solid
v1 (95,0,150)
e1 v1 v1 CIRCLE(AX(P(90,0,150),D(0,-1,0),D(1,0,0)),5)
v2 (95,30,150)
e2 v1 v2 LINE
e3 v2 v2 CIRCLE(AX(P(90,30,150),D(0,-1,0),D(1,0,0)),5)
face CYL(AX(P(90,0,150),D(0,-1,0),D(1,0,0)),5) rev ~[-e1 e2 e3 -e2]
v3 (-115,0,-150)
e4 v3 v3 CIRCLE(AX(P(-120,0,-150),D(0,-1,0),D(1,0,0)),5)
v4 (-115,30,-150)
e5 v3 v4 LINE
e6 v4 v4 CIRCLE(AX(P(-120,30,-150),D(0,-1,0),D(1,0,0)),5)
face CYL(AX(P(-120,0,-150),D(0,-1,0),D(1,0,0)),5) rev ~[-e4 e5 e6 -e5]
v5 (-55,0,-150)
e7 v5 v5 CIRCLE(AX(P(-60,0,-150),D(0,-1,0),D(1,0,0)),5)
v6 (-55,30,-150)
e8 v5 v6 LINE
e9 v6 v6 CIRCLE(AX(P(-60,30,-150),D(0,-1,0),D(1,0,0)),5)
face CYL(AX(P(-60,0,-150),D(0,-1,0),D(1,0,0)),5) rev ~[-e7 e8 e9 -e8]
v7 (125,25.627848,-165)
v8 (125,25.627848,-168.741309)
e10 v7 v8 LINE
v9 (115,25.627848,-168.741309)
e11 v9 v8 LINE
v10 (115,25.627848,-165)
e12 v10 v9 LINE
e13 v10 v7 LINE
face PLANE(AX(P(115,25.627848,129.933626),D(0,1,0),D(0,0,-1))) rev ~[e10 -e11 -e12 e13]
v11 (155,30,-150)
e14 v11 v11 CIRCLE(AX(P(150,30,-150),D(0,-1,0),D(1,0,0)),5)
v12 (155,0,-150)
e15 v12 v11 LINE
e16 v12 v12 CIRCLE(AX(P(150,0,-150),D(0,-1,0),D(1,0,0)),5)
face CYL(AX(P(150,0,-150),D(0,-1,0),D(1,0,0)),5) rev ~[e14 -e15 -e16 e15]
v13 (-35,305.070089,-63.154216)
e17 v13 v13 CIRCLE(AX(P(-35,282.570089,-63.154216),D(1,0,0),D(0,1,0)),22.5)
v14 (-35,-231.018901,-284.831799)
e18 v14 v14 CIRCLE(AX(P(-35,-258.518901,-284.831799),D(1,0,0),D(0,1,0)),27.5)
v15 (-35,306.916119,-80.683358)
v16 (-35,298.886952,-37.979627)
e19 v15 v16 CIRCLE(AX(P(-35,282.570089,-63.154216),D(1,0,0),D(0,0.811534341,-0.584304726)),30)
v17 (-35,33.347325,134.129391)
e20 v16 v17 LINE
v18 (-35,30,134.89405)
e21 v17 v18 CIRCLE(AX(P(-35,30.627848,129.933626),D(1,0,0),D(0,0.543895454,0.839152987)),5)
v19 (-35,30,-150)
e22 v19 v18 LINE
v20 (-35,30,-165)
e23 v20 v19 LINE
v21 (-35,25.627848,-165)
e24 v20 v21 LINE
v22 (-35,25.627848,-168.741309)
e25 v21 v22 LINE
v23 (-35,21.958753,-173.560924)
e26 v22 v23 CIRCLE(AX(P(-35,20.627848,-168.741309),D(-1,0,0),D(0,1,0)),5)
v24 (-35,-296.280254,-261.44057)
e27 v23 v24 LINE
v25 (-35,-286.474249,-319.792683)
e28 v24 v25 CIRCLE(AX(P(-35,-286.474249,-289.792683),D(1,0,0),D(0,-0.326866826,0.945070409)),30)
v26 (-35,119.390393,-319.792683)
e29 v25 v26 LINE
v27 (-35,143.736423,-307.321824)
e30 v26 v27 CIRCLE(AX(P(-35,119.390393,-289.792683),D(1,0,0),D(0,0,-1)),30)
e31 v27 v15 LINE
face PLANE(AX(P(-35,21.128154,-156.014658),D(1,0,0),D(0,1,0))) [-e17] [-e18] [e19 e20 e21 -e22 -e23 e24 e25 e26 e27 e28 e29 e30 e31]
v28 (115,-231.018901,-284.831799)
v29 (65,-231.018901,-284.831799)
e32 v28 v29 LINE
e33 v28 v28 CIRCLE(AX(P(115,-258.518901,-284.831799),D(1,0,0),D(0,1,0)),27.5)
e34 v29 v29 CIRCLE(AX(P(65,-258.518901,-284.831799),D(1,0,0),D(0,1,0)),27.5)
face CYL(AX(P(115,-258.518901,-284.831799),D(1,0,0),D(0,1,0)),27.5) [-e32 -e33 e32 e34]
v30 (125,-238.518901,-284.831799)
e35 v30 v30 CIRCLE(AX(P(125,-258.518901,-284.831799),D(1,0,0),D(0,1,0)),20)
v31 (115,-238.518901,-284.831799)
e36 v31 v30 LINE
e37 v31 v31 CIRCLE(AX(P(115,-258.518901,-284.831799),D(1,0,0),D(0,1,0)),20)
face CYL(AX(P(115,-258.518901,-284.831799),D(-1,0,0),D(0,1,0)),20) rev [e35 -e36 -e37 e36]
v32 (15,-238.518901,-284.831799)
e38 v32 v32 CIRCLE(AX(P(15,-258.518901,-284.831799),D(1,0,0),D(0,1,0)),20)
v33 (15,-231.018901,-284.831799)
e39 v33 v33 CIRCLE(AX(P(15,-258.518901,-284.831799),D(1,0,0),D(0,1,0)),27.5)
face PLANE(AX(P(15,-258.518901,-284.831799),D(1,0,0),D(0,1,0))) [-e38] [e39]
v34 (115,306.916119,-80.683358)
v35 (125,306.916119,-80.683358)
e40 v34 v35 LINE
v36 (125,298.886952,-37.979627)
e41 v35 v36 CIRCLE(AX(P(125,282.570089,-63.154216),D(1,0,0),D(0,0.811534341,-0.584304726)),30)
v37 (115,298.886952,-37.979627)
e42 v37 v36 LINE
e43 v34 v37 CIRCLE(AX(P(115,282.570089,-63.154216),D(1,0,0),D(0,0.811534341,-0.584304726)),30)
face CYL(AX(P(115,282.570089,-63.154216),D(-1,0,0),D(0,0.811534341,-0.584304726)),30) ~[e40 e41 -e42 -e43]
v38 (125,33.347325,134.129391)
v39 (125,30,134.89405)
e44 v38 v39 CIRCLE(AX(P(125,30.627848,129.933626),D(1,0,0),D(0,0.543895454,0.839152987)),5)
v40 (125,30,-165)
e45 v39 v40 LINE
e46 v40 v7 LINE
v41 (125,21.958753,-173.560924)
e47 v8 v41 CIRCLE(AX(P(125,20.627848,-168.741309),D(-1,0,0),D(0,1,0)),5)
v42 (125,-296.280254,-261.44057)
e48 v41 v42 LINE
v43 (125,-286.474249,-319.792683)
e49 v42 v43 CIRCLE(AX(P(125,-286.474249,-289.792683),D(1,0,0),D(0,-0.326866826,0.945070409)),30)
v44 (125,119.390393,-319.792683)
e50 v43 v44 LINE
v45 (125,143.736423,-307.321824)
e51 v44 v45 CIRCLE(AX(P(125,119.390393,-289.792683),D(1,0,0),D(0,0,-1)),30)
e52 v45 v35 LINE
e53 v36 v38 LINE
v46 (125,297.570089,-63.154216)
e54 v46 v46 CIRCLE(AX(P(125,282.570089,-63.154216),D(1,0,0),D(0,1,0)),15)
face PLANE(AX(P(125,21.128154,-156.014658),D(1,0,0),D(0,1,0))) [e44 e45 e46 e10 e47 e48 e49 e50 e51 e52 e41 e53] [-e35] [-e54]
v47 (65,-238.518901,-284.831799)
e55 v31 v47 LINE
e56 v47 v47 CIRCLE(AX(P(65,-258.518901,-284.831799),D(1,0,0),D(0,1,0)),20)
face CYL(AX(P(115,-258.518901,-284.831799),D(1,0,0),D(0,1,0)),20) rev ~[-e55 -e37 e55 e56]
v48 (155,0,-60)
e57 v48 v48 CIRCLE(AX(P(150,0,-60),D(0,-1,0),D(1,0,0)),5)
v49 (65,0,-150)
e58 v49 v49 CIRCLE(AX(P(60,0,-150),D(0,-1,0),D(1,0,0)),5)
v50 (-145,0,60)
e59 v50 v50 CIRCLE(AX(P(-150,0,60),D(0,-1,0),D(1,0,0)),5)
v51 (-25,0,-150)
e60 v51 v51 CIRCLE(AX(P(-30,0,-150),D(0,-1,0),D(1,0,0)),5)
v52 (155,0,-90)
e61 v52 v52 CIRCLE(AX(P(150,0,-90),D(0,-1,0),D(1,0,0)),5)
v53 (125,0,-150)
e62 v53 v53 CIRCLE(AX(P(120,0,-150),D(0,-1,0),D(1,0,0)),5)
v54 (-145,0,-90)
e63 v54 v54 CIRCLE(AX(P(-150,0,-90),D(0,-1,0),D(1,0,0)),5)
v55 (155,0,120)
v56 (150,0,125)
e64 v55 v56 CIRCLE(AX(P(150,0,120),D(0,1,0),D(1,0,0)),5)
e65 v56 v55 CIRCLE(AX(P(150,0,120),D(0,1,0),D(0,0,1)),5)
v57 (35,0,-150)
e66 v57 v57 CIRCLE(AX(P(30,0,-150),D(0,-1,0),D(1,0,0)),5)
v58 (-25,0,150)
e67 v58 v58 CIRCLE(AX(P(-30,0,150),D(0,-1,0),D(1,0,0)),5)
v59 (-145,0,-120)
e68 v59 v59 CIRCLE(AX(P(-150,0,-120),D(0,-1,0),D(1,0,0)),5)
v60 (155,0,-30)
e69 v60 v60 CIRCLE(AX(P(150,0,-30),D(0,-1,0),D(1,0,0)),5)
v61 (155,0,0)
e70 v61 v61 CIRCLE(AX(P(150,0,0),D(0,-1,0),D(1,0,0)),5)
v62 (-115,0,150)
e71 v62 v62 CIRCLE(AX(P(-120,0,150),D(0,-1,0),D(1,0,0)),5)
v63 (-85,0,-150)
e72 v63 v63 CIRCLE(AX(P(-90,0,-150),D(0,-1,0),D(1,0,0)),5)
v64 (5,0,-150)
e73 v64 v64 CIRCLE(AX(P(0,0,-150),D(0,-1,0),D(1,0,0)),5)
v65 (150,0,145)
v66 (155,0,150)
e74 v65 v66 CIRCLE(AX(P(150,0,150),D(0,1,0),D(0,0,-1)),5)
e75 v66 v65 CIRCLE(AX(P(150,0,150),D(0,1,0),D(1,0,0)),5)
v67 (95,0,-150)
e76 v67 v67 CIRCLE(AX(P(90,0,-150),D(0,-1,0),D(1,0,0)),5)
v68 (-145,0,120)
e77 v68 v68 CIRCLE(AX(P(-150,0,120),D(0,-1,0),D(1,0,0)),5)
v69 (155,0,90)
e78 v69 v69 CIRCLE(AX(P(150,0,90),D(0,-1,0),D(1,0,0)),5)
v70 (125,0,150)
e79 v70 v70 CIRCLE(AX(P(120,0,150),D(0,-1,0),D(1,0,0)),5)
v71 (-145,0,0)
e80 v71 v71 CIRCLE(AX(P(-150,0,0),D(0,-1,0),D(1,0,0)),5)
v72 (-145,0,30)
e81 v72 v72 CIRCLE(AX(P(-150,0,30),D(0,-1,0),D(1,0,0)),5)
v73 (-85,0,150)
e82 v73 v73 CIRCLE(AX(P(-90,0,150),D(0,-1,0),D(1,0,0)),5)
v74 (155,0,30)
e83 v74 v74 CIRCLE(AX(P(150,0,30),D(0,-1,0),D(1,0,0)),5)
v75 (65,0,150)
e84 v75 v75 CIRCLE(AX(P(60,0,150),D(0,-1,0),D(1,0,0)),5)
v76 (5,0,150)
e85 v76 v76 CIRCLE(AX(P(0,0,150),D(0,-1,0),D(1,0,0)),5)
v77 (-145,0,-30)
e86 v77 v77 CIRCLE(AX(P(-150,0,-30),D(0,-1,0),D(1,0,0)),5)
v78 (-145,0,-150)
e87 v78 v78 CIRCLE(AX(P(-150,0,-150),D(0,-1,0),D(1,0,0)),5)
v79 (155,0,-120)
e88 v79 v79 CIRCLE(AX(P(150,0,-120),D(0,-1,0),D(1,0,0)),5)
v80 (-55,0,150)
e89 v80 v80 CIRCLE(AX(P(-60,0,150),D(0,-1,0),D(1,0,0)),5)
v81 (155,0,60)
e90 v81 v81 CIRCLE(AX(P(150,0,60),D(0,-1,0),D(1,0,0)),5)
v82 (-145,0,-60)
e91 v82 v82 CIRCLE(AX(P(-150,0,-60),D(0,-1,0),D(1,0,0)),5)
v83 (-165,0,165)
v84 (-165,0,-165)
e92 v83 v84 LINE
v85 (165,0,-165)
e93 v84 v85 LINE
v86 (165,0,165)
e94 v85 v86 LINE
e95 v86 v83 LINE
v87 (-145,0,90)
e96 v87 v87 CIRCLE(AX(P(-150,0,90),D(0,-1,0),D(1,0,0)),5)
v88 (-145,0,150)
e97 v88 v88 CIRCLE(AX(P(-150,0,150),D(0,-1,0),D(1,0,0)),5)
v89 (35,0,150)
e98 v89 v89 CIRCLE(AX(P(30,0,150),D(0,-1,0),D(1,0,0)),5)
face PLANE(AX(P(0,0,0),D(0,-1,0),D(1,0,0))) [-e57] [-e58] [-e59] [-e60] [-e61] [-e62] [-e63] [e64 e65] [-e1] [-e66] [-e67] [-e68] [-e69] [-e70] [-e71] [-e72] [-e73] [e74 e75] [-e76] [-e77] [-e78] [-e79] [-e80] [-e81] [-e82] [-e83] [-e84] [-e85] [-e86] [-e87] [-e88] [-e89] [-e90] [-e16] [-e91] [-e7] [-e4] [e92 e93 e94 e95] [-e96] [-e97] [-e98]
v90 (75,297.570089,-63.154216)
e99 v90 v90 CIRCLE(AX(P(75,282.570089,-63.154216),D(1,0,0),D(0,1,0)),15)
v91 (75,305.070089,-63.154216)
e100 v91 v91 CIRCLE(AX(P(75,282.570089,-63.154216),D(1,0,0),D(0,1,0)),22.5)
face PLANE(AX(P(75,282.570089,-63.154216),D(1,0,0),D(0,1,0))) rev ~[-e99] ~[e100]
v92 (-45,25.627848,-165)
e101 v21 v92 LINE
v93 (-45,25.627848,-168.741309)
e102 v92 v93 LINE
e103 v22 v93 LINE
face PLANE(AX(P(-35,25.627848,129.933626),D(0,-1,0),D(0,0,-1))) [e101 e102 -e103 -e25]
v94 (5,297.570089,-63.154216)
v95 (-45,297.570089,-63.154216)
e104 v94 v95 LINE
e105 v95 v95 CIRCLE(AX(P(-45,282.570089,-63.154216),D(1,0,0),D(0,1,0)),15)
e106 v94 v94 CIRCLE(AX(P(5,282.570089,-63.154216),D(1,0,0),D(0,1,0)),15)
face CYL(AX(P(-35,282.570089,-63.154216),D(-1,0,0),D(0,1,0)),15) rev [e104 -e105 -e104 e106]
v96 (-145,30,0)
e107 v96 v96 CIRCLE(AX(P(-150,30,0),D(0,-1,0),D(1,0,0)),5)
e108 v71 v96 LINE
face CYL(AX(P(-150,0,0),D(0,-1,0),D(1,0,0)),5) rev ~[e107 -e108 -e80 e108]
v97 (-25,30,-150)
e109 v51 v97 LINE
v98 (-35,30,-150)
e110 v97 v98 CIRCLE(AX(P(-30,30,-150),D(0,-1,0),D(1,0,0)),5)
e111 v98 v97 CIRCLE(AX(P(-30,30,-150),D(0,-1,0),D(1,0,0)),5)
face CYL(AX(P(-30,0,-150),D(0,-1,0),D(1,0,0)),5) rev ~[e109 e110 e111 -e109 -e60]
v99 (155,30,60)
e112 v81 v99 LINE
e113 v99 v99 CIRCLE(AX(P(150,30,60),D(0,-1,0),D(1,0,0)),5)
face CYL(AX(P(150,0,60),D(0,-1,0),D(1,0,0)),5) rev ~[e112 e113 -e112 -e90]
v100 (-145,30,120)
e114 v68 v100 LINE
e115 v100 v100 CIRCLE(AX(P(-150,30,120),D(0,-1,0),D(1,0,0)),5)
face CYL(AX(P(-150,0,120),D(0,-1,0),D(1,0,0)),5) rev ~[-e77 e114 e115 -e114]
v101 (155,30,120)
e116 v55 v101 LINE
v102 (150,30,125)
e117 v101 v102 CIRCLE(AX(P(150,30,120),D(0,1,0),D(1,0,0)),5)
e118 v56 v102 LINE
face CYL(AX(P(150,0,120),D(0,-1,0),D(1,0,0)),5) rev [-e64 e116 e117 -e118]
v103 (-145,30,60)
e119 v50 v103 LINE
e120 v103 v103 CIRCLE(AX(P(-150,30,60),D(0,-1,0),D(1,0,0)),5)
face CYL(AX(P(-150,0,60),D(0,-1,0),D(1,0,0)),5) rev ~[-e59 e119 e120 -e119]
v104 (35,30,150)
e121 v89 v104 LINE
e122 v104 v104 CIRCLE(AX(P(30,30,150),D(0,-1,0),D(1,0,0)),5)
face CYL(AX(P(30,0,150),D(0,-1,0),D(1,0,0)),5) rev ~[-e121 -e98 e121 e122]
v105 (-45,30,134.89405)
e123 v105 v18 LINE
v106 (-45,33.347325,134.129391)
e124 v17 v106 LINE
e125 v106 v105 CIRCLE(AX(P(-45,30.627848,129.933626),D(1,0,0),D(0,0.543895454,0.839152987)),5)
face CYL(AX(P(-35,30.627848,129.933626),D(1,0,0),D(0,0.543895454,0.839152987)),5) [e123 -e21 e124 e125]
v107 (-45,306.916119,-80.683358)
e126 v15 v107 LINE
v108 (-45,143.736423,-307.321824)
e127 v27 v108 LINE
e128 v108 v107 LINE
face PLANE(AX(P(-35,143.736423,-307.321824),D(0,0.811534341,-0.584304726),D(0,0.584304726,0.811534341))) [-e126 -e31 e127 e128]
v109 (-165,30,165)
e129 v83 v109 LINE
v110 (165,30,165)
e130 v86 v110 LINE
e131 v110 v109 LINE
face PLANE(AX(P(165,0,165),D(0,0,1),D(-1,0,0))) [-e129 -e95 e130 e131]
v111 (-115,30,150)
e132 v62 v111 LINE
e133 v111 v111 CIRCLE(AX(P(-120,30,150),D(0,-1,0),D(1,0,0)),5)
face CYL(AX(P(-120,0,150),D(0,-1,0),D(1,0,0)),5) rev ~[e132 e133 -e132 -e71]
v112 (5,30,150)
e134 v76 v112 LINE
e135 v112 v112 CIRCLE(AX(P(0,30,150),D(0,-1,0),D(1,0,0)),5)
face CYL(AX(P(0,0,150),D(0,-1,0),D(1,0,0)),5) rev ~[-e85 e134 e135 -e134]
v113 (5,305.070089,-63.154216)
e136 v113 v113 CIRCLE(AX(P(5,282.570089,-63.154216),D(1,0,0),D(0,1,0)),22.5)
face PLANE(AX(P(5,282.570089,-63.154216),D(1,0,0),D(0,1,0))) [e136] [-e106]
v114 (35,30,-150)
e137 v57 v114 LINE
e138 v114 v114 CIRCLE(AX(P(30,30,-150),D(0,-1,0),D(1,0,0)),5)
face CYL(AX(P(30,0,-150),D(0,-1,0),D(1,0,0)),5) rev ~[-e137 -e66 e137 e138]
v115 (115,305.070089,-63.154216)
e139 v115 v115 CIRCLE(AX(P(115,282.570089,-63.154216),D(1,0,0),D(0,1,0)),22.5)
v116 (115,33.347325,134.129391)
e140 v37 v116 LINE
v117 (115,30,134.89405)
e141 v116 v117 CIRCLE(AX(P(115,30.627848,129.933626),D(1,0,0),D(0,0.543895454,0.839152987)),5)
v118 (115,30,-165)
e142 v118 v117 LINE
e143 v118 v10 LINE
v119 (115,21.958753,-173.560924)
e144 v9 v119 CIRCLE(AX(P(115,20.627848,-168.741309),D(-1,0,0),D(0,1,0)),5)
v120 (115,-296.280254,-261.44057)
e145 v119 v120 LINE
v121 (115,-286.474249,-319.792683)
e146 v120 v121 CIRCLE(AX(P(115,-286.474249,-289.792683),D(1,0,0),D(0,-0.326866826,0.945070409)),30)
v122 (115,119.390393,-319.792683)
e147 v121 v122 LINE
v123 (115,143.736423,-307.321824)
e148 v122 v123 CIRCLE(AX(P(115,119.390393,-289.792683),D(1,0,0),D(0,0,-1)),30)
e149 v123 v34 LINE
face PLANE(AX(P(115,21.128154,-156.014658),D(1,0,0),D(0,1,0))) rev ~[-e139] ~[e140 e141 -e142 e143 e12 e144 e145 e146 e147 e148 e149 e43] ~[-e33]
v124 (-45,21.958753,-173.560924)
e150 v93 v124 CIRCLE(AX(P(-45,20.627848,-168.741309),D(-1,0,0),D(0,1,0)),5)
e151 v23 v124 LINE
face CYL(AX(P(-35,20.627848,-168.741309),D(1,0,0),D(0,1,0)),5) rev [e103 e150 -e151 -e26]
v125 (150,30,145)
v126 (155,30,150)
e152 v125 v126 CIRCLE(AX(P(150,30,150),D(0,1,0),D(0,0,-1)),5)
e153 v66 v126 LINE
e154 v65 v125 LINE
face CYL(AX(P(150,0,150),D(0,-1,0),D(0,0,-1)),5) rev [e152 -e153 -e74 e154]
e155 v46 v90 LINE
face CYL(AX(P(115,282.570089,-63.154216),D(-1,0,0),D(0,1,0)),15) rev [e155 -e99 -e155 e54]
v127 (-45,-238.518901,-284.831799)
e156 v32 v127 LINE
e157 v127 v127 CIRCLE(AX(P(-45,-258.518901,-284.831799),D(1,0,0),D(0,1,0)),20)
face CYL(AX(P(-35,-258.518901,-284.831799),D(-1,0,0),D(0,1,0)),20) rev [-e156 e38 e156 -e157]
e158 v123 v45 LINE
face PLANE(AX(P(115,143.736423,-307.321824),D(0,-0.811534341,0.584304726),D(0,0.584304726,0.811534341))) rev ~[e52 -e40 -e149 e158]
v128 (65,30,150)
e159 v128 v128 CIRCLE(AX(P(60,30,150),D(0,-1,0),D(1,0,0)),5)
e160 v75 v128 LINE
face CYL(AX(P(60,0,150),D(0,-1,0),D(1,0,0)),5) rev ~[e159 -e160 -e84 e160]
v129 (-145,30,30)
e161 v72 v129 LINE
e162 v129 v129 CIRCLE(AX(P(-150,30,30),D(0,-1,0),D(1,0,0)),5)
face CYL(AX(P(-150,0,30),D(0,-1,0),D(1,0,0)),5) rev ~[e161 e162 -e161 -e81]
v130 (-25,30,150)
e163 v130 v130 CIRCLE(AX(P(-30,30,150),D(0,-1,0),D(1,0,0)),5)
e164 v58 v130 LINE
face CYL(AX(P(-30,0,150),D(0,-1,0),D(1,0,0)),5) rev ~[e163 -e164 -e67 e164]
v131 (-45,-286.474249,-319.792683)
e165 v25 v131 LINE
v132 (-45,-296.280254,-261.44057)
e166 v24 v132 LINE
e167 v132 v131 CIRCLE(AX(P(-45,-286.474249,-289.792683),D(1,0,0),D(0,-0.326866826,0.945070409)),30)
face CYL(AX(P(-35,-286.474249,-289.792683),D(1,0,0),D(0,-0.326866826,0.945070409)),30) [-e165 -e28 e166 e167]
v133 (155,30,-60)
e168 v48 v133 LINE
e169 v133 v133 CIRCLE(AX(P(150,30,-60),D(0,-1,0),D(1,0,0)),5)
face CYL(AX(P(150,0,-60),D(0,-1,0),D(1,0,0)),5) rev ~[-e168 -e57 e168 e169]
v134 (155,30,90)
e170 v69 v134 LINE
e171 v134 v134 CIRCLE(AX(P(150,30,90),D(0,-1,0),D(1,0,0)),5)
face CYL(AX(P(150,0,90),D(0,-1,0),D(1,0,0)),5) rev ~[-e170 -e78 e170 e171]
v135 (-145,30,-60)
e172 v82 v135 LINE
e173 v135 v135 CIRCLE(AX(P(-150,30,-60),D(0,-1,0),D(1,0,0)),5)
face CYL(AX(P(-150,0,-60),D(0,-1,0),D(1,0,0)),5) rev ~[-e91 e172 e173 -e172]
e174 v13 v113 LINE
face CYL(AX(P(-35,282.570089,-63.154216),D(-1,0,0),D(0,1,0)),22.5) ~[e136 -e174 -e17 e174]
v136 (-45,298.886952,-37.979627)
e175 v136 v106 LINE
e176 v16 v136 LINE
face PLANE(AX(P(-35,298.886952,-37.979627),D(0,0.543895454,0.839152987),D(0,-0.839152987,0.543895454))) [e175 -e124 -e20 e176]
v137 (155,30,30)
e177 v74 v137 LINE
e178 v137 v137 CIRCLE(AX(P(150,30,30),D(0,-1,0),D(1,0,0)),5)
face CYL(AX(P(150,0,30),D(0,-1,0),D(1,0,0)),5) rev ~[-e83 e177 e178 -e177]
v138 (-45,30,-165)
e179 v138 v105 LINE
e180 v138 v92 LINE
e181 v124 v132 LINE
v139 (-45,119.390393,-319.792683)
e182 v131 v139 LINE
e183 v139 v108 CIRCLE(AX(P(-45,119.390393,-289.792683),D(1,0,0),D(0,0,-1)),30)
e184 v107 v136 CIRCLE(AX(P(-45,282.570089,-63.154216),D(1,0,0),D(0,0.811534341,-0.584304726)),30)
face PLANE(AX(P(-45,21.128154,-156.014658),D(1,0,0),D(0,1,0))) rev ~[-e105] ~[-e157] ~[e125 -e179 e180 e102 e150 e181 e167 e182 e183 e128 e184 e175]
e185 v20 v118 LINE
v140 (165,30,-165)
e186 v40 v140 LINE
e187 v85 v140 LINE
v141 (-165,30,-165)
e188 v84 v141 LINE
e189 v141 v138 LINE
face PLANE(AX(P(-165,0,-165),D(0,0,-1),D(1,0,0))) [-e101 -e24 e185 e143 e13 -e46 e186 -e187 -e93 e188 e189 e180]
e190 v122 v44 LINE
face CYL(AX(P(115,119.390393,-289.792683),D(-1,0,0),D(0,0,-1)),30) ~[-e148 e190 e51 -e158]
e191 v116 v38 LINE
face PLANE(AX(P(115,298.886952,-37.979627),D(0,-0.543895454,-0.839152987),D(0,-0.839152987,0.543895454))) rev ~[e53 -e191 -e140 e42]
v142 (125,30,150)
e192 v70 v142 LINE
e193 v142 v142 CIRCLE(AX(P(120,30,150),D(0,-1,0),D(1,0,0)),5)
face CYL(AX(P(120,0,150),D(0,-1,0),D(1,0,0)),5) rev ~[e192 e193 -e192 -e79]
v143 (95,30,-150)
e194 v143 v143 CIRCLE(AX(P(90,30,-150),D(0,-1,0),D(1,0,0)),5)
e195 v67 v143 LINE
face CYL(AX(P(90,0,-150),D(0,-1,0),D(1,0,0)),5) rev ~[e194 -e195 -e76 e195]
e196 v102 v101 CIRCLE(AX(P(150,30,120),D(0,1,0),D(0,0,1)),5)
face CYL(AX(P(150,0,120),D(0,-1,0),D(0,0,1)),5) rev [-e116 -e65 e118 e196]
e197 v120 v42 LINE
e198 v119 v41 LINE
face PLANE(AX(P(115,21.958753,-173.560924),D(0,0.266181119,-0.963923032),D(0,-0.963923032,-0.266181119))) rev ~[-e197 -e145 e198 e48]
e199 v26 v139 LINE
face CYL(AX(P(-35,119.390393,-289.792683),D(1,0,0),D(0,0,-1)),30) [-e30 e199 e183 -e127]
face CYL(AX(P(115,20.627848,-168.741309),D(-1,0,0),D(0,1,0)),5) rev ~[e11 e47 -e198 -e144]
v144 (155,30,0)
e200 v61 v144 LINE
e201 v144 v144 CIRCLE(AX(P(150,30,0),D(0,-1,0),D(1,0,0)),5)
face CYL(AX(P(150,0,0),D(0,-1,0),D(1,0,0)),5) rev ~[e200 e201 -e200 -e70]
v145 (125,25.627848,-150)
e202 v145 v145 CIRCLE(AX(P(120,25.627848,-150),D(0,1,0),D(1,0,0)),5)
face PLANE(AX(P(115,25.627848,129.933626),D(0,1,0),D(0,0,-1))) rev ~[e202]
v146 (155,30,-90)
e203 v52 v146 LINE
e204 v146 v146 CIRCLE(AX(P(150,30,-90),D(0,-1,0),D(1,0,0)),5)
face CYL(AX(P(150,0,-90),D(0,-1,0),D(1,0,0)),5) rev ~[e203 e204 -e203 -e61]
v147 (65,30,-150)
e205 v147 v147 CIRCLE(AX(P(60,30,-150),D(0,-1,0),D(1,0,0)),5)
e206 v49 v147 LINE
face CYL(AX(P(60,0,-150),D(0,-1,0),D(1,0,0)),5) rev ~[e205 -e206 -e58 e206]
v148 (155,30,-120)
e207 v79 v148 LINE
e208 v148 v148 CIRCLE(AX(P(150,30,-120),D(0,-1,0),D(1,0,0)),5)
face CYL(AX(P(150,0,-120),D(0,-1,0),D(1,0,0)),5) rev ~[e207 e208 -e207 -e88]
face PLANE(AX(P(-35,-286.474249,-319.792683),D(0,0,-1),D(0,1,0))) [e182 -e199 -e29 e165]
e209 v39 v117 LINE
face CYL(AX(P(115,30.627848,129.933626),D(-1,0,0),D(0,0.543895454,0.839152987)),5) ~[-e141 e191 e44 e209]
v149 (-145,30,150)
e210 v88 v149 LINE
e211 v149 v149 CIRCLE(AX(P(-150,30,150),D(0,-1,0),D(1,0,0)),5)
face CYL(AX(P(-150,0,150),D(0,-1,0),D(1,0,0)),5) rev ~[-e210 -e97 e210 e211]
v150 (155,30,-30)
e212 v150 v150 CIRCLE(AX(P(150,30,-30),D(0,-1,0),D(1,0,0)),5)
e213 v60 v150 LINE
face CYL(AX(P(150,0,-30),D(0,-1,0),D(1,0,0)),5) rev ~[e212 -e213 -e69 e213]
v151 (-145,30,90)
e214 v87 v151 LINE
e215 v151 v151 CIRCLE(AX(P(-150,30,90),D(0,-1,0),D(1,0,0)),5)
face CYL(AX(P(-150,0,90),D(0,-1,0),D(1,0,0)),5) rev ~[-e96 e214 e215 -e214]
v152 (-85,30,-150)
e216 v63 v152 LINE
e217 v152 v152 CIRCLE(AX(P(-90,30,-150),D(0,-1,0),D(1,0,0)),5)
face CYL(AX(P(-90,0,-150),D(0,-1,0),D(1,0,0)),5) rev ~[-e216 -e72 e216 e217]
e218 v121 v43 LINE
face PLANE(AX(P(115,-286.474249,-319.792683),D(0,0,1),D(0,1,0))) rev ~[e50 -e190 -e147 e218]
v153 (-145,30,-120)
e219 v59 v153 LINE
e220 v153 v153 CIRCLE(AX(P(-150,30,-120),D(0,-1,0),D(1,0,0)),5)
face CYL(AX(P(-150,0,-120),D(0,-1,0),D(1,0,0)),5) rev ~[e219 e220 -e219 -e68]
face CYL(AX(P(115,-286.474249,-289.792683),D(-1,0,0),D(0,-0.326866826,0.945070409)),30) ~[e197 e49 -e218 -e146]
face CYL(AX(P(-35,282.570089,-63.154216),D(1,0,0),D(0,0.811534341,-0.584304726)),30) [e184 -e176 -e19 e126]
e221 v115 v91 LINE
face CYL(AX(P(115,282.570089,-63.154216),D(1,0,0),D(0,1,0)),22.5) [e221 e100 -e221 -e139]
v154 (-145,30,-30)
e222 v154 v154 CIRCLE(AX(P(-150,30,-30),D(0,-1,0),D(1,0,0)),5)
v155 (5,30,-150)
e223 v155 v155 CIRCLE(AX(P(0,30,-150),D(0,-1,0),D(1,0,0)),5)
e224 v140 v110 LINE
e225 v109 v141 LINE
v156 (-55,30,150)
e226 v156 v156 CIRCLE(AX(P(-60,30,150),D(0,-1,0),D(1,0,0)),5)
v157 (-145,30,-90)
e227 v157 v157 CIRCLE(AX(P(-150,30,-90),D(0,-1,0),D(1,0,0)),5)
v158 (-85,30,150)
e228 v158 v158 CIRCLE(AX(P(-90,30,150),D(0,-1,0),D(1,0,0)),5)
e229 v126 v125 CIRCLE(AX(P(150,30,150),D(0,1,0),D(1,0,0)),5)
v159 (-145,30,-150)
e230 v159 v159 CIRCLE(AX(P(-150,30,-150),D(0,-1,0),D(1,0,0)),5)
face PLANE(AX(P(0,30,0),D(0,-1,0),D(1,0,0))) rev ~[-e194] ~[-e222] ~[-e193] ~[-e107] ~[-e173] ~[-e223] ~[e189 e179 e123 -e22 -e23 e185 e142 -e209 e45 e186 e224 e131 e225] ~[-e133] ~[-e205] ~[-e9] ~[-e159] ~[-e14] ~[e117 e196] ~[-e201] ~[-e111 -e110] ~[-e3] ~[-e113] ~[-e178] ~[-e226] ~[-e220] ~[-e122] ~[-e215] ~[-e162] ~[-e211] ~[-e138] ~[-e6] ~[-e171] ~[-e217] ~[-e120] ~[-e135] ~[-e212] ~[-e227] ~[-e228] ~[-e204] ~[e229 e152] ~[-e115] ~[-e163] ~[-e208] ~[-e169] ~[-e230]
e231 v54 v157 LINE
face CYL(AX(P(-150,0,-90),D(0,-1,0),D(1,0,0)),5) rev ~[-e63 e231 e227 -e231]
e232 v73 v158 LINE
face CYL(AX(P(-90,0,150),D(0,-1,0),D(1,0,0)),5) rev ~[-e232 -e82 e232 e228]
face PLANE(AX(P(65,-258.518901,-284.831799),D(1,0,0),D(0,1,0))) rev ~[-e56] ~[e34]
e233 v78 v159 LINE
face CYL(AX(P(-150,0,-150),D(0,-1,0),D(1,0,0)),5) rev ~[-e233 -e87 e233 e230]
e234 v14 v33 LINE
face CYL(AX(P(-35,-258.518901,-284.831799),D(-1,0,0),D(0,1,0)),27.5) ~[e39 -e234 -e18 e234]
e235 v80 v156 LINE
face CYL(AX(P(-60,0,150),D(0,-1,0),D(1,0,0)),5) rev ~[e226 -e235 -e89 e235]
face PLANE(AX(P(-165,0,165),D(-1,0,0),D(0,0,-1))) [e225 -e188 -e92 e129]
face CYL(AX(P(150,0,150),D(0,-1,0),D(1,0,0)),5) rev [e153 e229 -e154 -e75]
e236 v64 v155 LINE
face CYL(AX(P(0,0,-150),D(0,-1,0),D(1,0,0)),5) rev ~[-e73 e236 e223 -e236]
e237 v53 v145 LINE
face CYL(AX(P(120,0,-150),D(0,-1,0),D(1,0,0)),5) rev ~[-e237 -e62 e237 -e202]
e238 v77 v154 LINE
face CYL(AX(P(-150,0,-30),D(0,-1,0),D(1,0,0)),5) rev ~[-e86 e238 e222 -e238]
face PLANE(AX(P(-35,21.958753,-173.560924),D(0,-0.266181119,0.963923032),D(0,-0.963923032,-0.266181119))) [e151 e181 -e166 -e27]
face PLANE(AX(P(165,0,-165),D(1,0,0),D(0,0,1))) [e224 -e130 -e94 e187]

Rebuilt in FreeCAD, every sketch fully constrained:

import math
import FreeCAD as App
import Part
import Sketcher

V = App.Vector
Q = App.Units.Quantity

doc = App.newDocument("Part")
body = doc.addObject("PartDesign::Body", "Body")

sketch1 = body.newObject("Sketcher::SketchObject", "Sketch")
sketch1.AttachmentSupport = (doc.getObject("XZ_Plane"), [""])
sketch1.MapMode = "FlatFace"
sketch1.addGeometry(Part.LineSegment(V(-165, -165, 0), V(165, -165, 0)), False)
sketch1.addGeometry(Part.LineSegment(V(165, -165, 0), V(165, 165, 0)), False)
sketch1.addGeometry(Part.LineSegment(V(165, 165, 0), V(-165, 165, 0)), False)
sketch1.addGeometry(Part.LineSegment(V(-165, 165, 0), V(-165, -165, 0)), False)
sketch1.addGeometry(Part.Circle(V(-150, -150, 0), V(0, 0, 1), 5), False)
sketch1.addGeometry(Part.Circle(V(-120, -150, 0), V(0, 0, 1), 5), False)
sketch1.addGeometry(Part.Circle(V(-150, -120, 0), V(0, 0, 1), 5), False)
sketch1.addGeometry(Part.Circle(V(-90, -150, 0), V(0, 0, 1), 5), False)
sketch1.addGeometry(Part.Circle(V(-150, -90, 0), V(0, 0, 1), 5), False)
sketch1.addGeometry(Part.Circle(V(-60, -150, 0), V(0, 0, 1), 5), False)
sketch1.addGeometry(Part.Circle(V(-30, -150, 0), V(0, 0, 1), 5), False)
sketch1.addGeometry(Part.Circle(V(-150, -60, 0), V(0, 0, 1), 5), False)
sketch1.addGeometry(Part.Circle(V(-150, -30, 0), V(0, 0, 1), 5), False)
sketch1.addGeometry(Part.Circle(V(0, -150, 0), V(0, 0, 1), 5), False)
sketch1.addGeometry(Part.Circle(V(30, -150, 0), V(0, 0, 1), 5), False)
sketch1.addGeometry(Part.Circle(V(60, -150, 0), V(0, 0, 1), 5), False)
sketch1.addGeometry(Part.Circle(V(90, -150, 0), V(0, 0, 1), 5), False)
sketch1.addGeometry(Part.Circle(V(120, -150, 0), V(0, 0, 1), 5), False)
sketch1.addGeometry(Part.Circle(V(150, -150, 0), V(0, 0, 1), 5), False)
sketch1.addGeometry(Part.Circle(V(150, -120, 0), V(0, 0, 1), 5), False)
sketch1.addGeometry(Part.Circle(V(150, -90, 0), V(0, 0, 1), 5), False)
sketch1.addGeometry(Part.Circle(V(150, -60, 0), V(0, 0, 1), 5), False)
sketch1.addGeometry(Part.Circle(V(150, -30, 0), V(0, 0, 1), 5), False)
sketch1.addGeometry(Part.Circle(V(-150, 0, 0), V(0, 0, 1), 5), False)
sketch1.addGeometry(Part.Circle(V(-150, 30, 0), V(0, 0, 1), 5), False)
sketch1.addGeometry(Part.Circle(V(-150, 60, 0), V(0, 0, 1), 5), False)
sketch1.addGeometry(Part.Circle(V(-150, 90, 0), V(0, 0, 1), 5), False)
sketch1.addGeometry(Part.Circle(V(-150, 120, 0), V(0, 0, 1), 5), False)
sketch1.addGeometry(Part.Circle(V(-150, 150, 0), V(0, 0, 1), 5), False)
sketch1.addGeometry(Part.Circle(V(-120, 150, 0), V(0, 0, 1), 5), False)
sketch1.addGeometry(Part.Circle(V(-90, 150, 0), V(0, 0, 1), 5), False)
sketch1.addGeometry(Part.Circle(V(-60, 150, 0), V(0, 0, 1), 5), False)
sketch1.addGeometry(Part.Circle(V(-30, 150, 0), V(0, 0, 1), 5), False)
sketch1.addGeometry(Part.Circle(V(150, 0, 0), V(0, 0, 1), 5), False)
sketch1.addGeometry(Part.Circle(V(150, 30, 0), V(0, 0, 1), 5), False)
sketch1.addGeometry(Part.Circle(V(150, 60, 0), V(0, 0, 1), 5), False)
sketch1.addGeometry(Part.Circle(V(0, 150, 0), V(0, 0, 1), 5), False)
sketch1.addGeometry(Part.Circle(V(30, 150, 0), V(0, 0, 1), 5), False)
sketch1.addGeometry(Part.Circle(V(60, 150, 0), V(0, 0, 1), 5), False)
sketch1.addGeometry(Part.Circle(V(150, 90, 0), V(0, 0, 1), 5), False)
sketch1.addGeometry(Part.Circle(V(90, 150, 0), V(0, 0, 1), 5), False)
sketch1.addGeometry(Part.ArcOfCircle(Part.Circle(V(150, 120, 0), V(0, 0, 1), 5), math.radians(0), math.radians(90)), False)
sketch1.addGeometry(Part.ArcOfCircle(Part.Circle(V(150, 120, 0), V(0, 0, 1), 5), math.radians(90), math.radians(360)), False)
sketch1.addGeometry(Part.Circle(V(120, 150, 0), V(0, 0, 1), 5), False)
sketch1.addGeometry(Part.ArcOfCircle(Part.Circle(V(150, 150, 0), V(0, 0, 1), 5), math.radians(0), math.radians(270)), False)
sketch1.addGeometry(Part.ArcOfCircle(Part.Circle(V(150, 150, 0), V(0, 0, 1), 5), math.radians(-90), math.radians(0)), False)
sketch1.addConstraint(Sketcher.Constraint("Coincident", 0, 2, 1, 1))
sketch1.addConstraint(Sketcher.Constraint("Coincident", 1, 2, 2, 1))
sketch1.addConstraint(Sketcher.Constraint("Coincident", 2, 2, 3, 1))
sketch1.addConstraint(Sketcher.Constraint("Coincident", 3, 2, 0, 1))
sketch1.addConstraint(Sketcher.Constraint("Tangent", 41, 1, 42, 2))
sketch1.addConstraint(Sketcher.Constraint("Coincident", 42, 1, 41, 2))
sketch1.addConstraint(Sketcher.Constraint("Tangent", 44, 1, 45, 2))
sketch1.addConstraint(Sketcher.Constraint("Coincident", 45, 1, 44, 2))
sketch1.addConstraint(Sketcher.Constraint("Horizontal", 0))
sketch1.addConstraint(Sketcher.Constraint("Vertical", 1))
sketch1.addConstraint(Sketcher.Constraint("Horizontal", 2))
sketch1.addConstraint(Sketcher.Constraint("Vertical", 3))
sketch1.addConstraint(Sketcher.Constraint("Equal", 4, 5))
sketch1.addConstraint(Sketcher.Constraint("Equal", 5, 6))
sketch1.addConstraint(Sketcher.Constraint("Equal", 6, 7))
sketch1.addConstraint(Sketcher.Constraint("Equal", 7, 8))
sketch1.addConstraint(Sketcher.Constraint("Equal", 8, 9))
sketch1.addConstraint(Sketcher.Constraint("Equal", 9, 10))
sketch1.addConstraint(Sketcher.Constraint("Equal", 10, 11))
sketch1.addConstraint(Sketcher.Constraint("Equal", 11, 12))
sketch1.addConstraint(Sketcher.Constraint("Equal", 12, 13))
sketch1.addConstraint(Sketcher.Constraint("Equal", 13, 14))
sketch1.addConstraint(Sketcher.Constraint("Equal", 14, 15))
sketch1.addConstraint(Sketcher.Constraint("Equal", 15, 16))
sketch1.addConstraint(Sketcher.Constraint("Equal", 16, 17))
sketch1.addConstraint(Sketcher.Constraint("Equal", 17, 18))
sketch1.addConstraint(Sketcher.Constraint("Equal", 18, 19))
sketch1.addConstraint(Sketcher.Constraint("Equal", 19, 20))
sketch1.addConstraint(Sketcher.Constraint("Equal", 20, 21))
sketch1.addConstraint(Sketcher.Constraint("Equal", 21, 22))
sketch1.addConstraint(Sketcher.Constraint("Equal", 22, 23))
sketch1.addConstraint(Sketcher.Constraint("Equal", 23, 24))
sketch1.addConstraint(Sketcher.Constraint("Equal", 24, 25))
sketch1.addConstraint(Sketcher.Constraint("Equal", 25, 26))
sketch1.addConstraint(Sketcher.Constraint("Equal", 26, 27))
sketch1.addConstraint(Sketcher.Constraint("Equal", 27, 28))
sketch1.addConstraint(Sketcher.Constraint("Equal", 28, 29))
sketch1.addConstraint(Sketcher.Constraint("Equal", 29, 30))
sketch1.addConstraint(Sketcher.Constraint("Equal", 30, 31))
sketch1.addConstraint(Sketcher.Constraint("Equal", 31, 32))
sketch1.addConstraint(Sketcher.Constraint("Equal", 32, 33))
sketch1.addConstraint(Sketcher.Constraint("Equal", 33, 34))
sketch1.addConstraint(Sketcher.Constraint("Equal", 34, 35))
sketch1.addConstraint(Sketcher.Constraint("Equal", 35, 36))
sketch1.addConstraint(Sketcher.Constraint("Equal", 36, 37))
sketch1.addConstraint(Sketcher.Constraint("Equal", 37, 38))
sketch1.addConstraint(Sketcher.Constraint("Equal", 38, 39))
sketch1.addConstraint(Sketcher.Constraint("Equal", 39, 40))
sketch1.addConstraint(Sketcher.Constraint("Equal", 40, 41))
sketch1.addConstraint(Sketcher.Constraint("Equal", 42, 43))
sketch1.addConstraint(Sketcher.Constraint("Equal", 43, 44))
sketch1.addConstraint(Sketcher.Constraint("Symmetric", 22, 3, 24, 3, -1, 1))
sketch1.addConstraint(Sketcher.Constraint("Symmetric", 21, 3, 25, 3, -1, 1))
sketch1.addConstraint(Sketcher.Constraint("Symmetric", 20, 3, 26, 3, -1, 1))
sketch1.addConstraint(Sketcher.Constraint("Symmetric", 19, 3, 27, 3, -1, 1))
sketch1.addConstraint(Sketcher.Constraint("Symmetric", 18, 3, 28, 3, -1, 1))
sketch1.addConstraint(Sketcher.Constraint("Symmetric", 17, 3, 29, 3, -1, 1))
sketch1.addConstraint(Sketcher.Constraint("Symmetric", 16, 3, 30, 3, -1, 1))
sketch1.addConstraint(Sketcher.Constraint("Symmetric", 15, 3, 31, 3, -1, 1))
sketch1.addConstraint(Sketcher.Constraint("Symmetric", 14, 3, 32, 3, -1, 1))
sketch1.addConstraint(Sketcher.Constraint("Symmetric", 23, 3, 33, 3, -1, 1))
sketch1.addConstraint(Sketcher.Constraint("Symmetric", 12, 3, 34, 3, -1, 1))
sketch1.addConstraint(Sketcher.Constraint("Symmetric", 11, 3, 35, 3, -1, 1))
sketch1.addConstraint(Sketcher.Constraint("Symmetric", 13, 3, 36, 3, -1, 1))
sketch1.addConstraint(Sketcher.Constraint("Symmetric", 10, 3, 37, 3, -1, 1))
sketch1.addConstraint(Sketcher.Constraint("Symmetric", 9, 3, 38, 3, -1, 1))
sketch1.addConstraint(Sketcher.Constraint("Symmetric", 8, 3, 39, 3, -1, 1))
sketch1.addConstraint(Sketcher.Constraint("Symmetric", 7, 3, 40, 3, -1, 1))
sketch1.addConstraint(Sketcher.Constraint("Symmetric", 6, 3, 41, 3, -1, 1))
sketch1.addConstraint(Sketcher.Constraint("Symmetric", 5, 3, 43, 3, -1, 1))
sketch1.addConstraint(Sketcher.Constraint("Symmetric", 4, 3, 44, 3, -1, 1))
sketch1.addConstraint(Sketcher.Constraint("Symmetric", 0, 2, 2, 2, -1, 1))
sketch1.addConstraint(Sketcher.Constraint("Symmetric", 10, 3, 14, 3, -2))
sketch1.addConstraint(Sketcher.Constraint("Symmetric", 9, 3, 15, 3, -2))
sketch1.addConstraint(Sketcher.Constraint("Symmetric", 7, 3, 16, 3, -2))
sketch1.addConstraint(Sketcher.Constraint("Symmetric", 5, 3, 17, 3, -2))
sketch1.addConstraint(Sketcher.Constraint("Symmetric", 4, 3, 18, 3, -2))
sketch1.addConstraint(Sketcher.Constraint("Symmetric", 6, 3, 19, 3, -2))
sketch1.addConstraint(Sketcher.Constraint("Symmetric", 8, 3, 20, 3, -2))
sketch1.addConstraint(Sketcher.Constraint("Symmetric", 11, 3, 21, 3, -2))
sketch1.addConstraint(Sketcher.Constraint("Symmetric", 12, 3, 22, 3, -2))
sketch1.addConstraint(Sketcher.Constraint("PointOnObject", 13, 3, -2))
sketch1.addConstraint(Sketcher.Constraint("PointOnObject", 23, 3, -1))
sketch1.addConstraint(Sketcher.Constraint("Horizontal", 4, 3, 5, 3))
sketch1.addConstraint(Sketcher.Constraint("Horizontal", 5, 3, 7, 3))
sketch1.addConstraint(Sketcher.Constraint("Horizontal", 7, 3, 9, 3))
sketch1.addConstraint(Sketcher.Constraint("Horizontal", 9, 3, 10, 3))
sketch1.addConstraint(Sketcher.Constraint("Horizontal", 10, 3, 13, 3))
sketch1.addConstraint(Sketcher.Constraint("Horizontal", 42, 3, 41, 1))
sketch1.addConstraint(Sketcher.Constraint("Horizontal", 45, 3, 44, 1))
sketch1.addConstraint(Sketcher.Constraint("Vertical", 4, 3, 6, 3))
sketch1.addConstraint(Sketcher.Constraint("Vertical", 6, 3, 8, 3))
sketch1.addConstraint(Sketcher.Constraint("Vertical", 8, 3, 11, 3))
sketch1.addConstraint(Sketcher.Constraint("Vertical", 11, 3, 12, 3))
sketch1.addConstraint(Sketcher.Constraint("Vertical", 12, 3, 23, 3))
sketch1.addConstraint(Sketcher.Constraint("Vertical", 45, 3, 42, 1))
sketch1.addConstraint(Sketcher.Constraint("Vertical", 42, 1, 45, 1))
sketch1.addConstraint(Sketcher.Constraint("Equal", 2, 1))
sketch1.addConstraint(Sketcher.Constraint("Diameter", 4, Q("10 mm")))
sketch1.addConstraint(Sketcher.Constraint("DistanceX", 0, 1, 0, 2, Q("330 mm")))
sketch1.addConstraint(Sketcher.Constraint("DistanceX", 4, 3, -1, 1, Q("150 mm")))
sketch1.addConstraint(Sketcher.Constraint("DistanceY", 4, 3, -1, 1, Q("150 mm")))
sketch1.addConstraint(Sketcher.Constraint("DistanceX", 5, 3, -1, 1, Q("120 mm")))
sketch1.addConstraint(Sketcher.Constraint("DistanceY", 6, 3, -1, 1, Q("120 mm")))
sketch1.addConstraint(Sketcher.Constraint("DistanceX", 7, 3, -1, 1, Q("90 mm")))
sketch1.addConstraint(Sketcher.Constraint("DistanceY", 8, 3, -1, 1, Q("90 mm")))
sketch1.addConstraint(Sketcher.Constraint("DistanceX", 9, 3, -1, 1, Q("60 mm")))
sketch1.addConstraint(Sketcher.Constraint("DistanceX", 10, 3, -1, 1, Q("30 mm")))
sketch1.addConstraint(Sketcher.Constraint("DistanceY", 11, 3, -1, 1, Q("60 mm")))
sketch1.addConstraint(Sketcher.Constraint("DistanceY", 12, 3, -1, 1, Q("30 mm")))
pad1 = body.newObject("PartDesign::Pad", "Pad")
pad1.Profile = sketch1
pad1.Length = 30
pad1.Reversed = True

sketch2 = body.newObject("Sketcher::SketchObject", "Sketch001")
sketch2.AttachmentSupport = (doc.getObject("YZ_Plane"), [""])
sketch2.MapMode = "FlatFace"
sketch2.AttachmentOffset = App.Placement(V(0, 0, 115), App.Rotation())
sketch2.addGeometry(Part.LineSegment(V(299, -38, 0), V(33, 134, 0)), False)
sketch2.addGeometry(Part.ArcOfCircle(Part.Circle(V(31, 130, 0), V(0, 0, 1), 5), math.radians(57), math.radians(180)), False)
sketch2.addGeometry(Part.LineSegment(V(26, 130, 0), V(26, -169, 0)), False)
sketch2.addGeometry(Part.ArcOfCircle(Part.Circle(V(21, -169, 0), V(0, 0, 1), 5), math.radians(-75), math.radians(0)), False)
sketch2.addGeometry(Part.LineSegment(V(22, -174, 0), V(-296, -261, 0)), False)
sketch2.addGeometry(Part.ArcOfCircle(Part.Circle(V(-286, -290, 0), V(0, 0, 1), 30), math.radians(109), math.radians(270)), False)
sketch2.addGeometry(Part.LineSegment(V(-286, -320, 0), V(119, -320, 0)), False)
sketch2.addGeometry(Part.ArcOfCircle(Part.Circle(V(119, -290, 0), V(0, 0, 1), 30), math.radians(-90), math.radians(-36)), False)
sketch2.addGeometry(Part.LineSegment(V(144, -307, 0), V(307, -81, 0)), False)
sketch2.addGeometry(Part.ArcOfCircle(Part.Circle(V(283, -63, 0), V(0, 0, 1), 30), math.radians(-36), math.radians(57)), False)
sketch2.addGeometry(Part.Circle(V(-259, -285, 0), V(0, 0, 1), 20), False)
sketch2.addGeometry(Part.Circle(V(283, -63, 0), V(0, 0, 1), 15), False)
sketch2.addConstraint(Sketcher.Constraint("Tangent", 0, 2, 1, 1))
sketch2.addConstraint(Sketcher.Constraint("Tangent", 1, 2, 2, 1))
sketch2.addConstraint(Sketcher.Constraint("Tangent", 2, 2, 3, 2))
sketch2.addConstraint(Sketcher.Constraint("Tangent", 3, 1, 4, 1))
sketch2.addConstraint(Sketcher.Constraint("Coincident", 4, 2, 5, 1))
sketch2.addConstraint(Sketcher.Constraint("Tangent", 5, 2, 6, 1))
sketch2.addConstraint(Sketcher.Constraint("Tangent", 6, 2, 7, 1))
sketch2.addConstraint(Sketcher.Constraint("Tangent", 7, 2, 8, 1))
sketch2.addConstraint(Sketcher.Constraint("Tangent", 8, 2, 9, 1))
sketch2.addConstraint(Sketcher.Constraint("Tangent", 9, 2, 0, 1))
sketch2.addConstraint(Sketcher.Constraint("Vertical", 2))
sketch2.addConstraint(Sketcher.Constraint("Horizontal", 6))
sketch2.addConstraint(Sketcher.Constraint("Coincident", 11, 3, 9, 3))
sketch2.addConstraint(Sketcher.Constraint("Equal", 1, 3))
sketch2.addConstraint(Sketcher.Constraint("Equal", 5, 7))
sketch2.addConstraint(Sketcher.Constraint("Equal", 7, 9))
sketch2.addConstraint(Sketcher.Constraint("Diameter", 10, Q("40 mm")))
sketch2.addConstraint(Sketcher.Constraint("Diameter", 11, Q("30 mm")))
sketch2.addConstraint(Sketcher.Constraint("Radius", 1, Q("5 mm")))
sketch2.addConstraint(Sketcher.Constraint("Radius", 5, Q("30 mm")))
sketch2.addConstraint(Sketcher.Constraint("DistanceX", 10, 3, -1, 1, Q("258.518901 mm")))
sketch2.addConstraint(Sketcher.Constraint("DistanceY", 10, 3, -1, 1, Q("284.831799 mm")))
sketch2.addConstraint(Sketcher.Constraint("DistanceY", 3, 3, 0, 2, Q("302.8707 mm")))
sketch2.addConstraint(Sketcher.Constraint("DistanceX", 4, 2, 3, 3, Q("316.908102 mm")))
sketch2.addConstraint(Sketcher.Constraint("DistanceY", 7, 2, 3, 1, Q("133.7609 mm")))
sketch2.addConstraint(Sketcher.Constraint("Distance", 4, Q("330.149812 mm")))
sketch2.addConstraint(Sketcher.Constraint("DistanceX", 6, 1, 6, 2, Q("405.864642 mm")))
sketch2.addConstraint(Sketcher.Constraint("DistanceY", 2, 2, 2, 1, Q("298.674935 mm")))
sketch2.addConstraint(Sketcher.Constraint("DistanceY", 3, 3, -1, 1, Q("168.741309 mm")))
sketch2.addConstraint(Sketcher.Constraint("DistanceX", 5, 3, -1, 1, Q("286.474249 mm")))
sketch2.addConstraint(Sketcher.Constraint("DistanceX", -1, 1, 9, 3, Q("282.570089 mm")))
pad2 = body.newObject("PartDesign::Pad", "Pad001")
pad2.Profile = sketch2
pad2.Length = 10

sketch3 = body.newObject("Sketcher::SketchObject", "Sketch002")
sketch3.AttachmentSupport = (doc.getObject("YZ_Plane"), [""])
sketch3.MapMode = "FlatFace"
sketch3.AttachmentOffset = App.Placement(V(0, 0, -35), App.Rotation())
sketch3.addGeometry(Part.ArcOfCircle(Part.Circle(V(31, 130, 0), V(0, 0, 1), 5), math.radians(57), math.radians(180)), False)
sketch3.addGeometry(Part.LineSegment(V(26, 130, 0), V(26, -169, 0)), False)
sketch3.addGeometry(Part.ArcOfCircle(Part.Circle(V(21, -169, 0), V(0, 0, 1), 5), math.radians(-75), math.radians(0)), False)
sketch3.addGeometry(Part.LineSegment(V(22, -174, 0), V(-296, -261, 0)), False)
sketch3.addGeometry(Part.ArcOfCircle(Part.Circle(V(-286, -290, 0), V(0, 0, 1), 30), math.radians(109), math.radians(270)), False)
sketch3.addGeometry(Part.LineSegment(V(-286, -320, 0), V(119, -320, 0)), False)
sketch3.addGeometry(Part.ArcOfCircle(Part.Circle(V(119, -290, 0), V(0, 0, 1), 30), math.radians(-90), math.radians(-36)), False)
sketch3.addGeometry(Part.LineSegment(V(144, -307, 0), V(307, -81, 0)), False)
sketch3.addGeometry(Part.ArcOfCircle(Part.Circle(V(283, -63, 0), V(0, 0, 1), 30), math.radians(-36), math.radians(57)), False)
sketch3.addGeometry(Part.LineSegment(V(299, -38, 0), V(33, 134, 0)), False)
sketch3.addGeometry(Part.Circle(V(-259, -285, 0), V(0, 0, 1), 20), False)
sketch3.addGeometry(Part.Circle(V(283, -63, 0), V(0, 0, 1), 15), False)
sketch3.addConstraint(Sketcher.Constraint("Tangent", 0, 2, 1, 1))
sketch3.addConstraint(Sketcher.Constraint("Tangent", 1, 2, 2, 2))
sketch3.addConstraint(Sketcher.Constraint("Tangent", 2, 1, 3, 1))
sketch3.addConstraint(Sketcher.Constraint("Coincident", 3, 2, 4, 1))
sketch3.addConstraint(Sketcher.Constraint("Tangent", 4, 2, 5, 1))
sketch3.addConstraint(Sketcher.Constraint("Tangent", 5, 2, 6, 1))
sketch3.addConstraint(Sketcher.Constraint("Tangent", 6, 2, 7, 1))
sketch3.addConstraint(Sketcher.Constraint("Tangent", 7, 2, 8, 1))
sketch3.addConstraint(Sketcher.Constraint("Tangent", 8, 2, 9, 1))
sketch3.addConstraint(Sketcher.Constraint("Tangent", 9, 2, 0, 1))
sketch3.addConstraint(Sketcher.Constraint("Vertical", 1))
sketch3.addConstraint(Sketcher.Constraint("Horizontal", 5))
sketch3.addConstraint(Sketcher.Constraint("Coincident", 11, 3, 8, 3))
sketch3.addConstraint(Sketcher.Constraint("Equal", 0, 2))
sketch3.addConstraint(Sketcher.Constraint("Equal", 4, 6))
sketch3.addConstraint(Sketcher.Constraint("Equal", 6, 8))
sketch3.addConstraint(Sketcher.Constraint("Diameter", 10, Q("40 mm")))
sketch3.addConstraint(Sketcher.Constraint("Diameter", 11, Q("30 mm")))
sketch3.addConstraint(Sketcher.Constraint("Radius", 0, Q("5 mm")))
sketch3.addConstraint(Sketcher.Constraint("Radius", 4, Q("30 mm")))
sketch3.addConstraint(Sketcher.Constraint("DistanceX", 10, 3, -1, 1, Q("258.518901 mm")))
sketch3.addConstraint(Sketcher.Constraint("DistanceY", 10, 3, -1, 1, Q("284.831799 mm")))
sketch3.addConstraint(Sketcher.Constraint("DistanceX", 3, 2, 2, 3, Q("316.908102 mm")))
sketch3.addConstraint(Sketcher.Constraint("DistanceY", 6, 2, 2, 1, Q("133.7609 mm")))
sketch3.addConstraint(Sketcher.Constraint("DistanceY", 1, 2, 9, 2, Q("302.8707 mm")))
sketch3.addConstraint(Sketcher.Constraint("Distance", 3, Q("330.149812 mm")))
sketch3.addConstraint(Sketcher.Constraint("DistanceX", 5, 1, 5, 2, Q("405.864642 mm")))
sketch3.addConstraint(Sketcher.Constraint("DistanceY", 1, 2, 1, 1, Q("298.674935 mm")))
sketch3.addConstraint(Sketcher.Constraint("DistanceY", 2, 3, -1, 1, Q("168.741309 mm")))
sketch3.addConstraint(Sketcher.Constraint("DistanceX", 4, 3, -1, 1, Q("286.474249 mm")))
sketch3.addConstraint(Sketcher.Constraint("DistanceX", -1, 1, 8, 3, Q("282.570089 mm")))
pad3 = body.newObject("PartDesign::Pad", "Pad002")
pad3.Profile = sketch3
pad3.Length = 10
pad3.Reversed = True

sketch4 = body.newObject("Sketcher::SketchObject", "Sketch003")
sketch4.AttachmentSupport = (doc.getObject("YZ_Plane"), [""])
sketch4.MapMode = "FlatFace"
sketch4.AttachmentOffset = App.Placement(V(0, 0, -35), App.Rotation())
sketch4.addGeometry(Part.Circle(V(283, -63, 0), V(0, 0, 1), 22), False)
sketch4.addGeometry(Part.Circle(V(283, -63, 0), V(0, 0, 1), 15), False)
sketch4.addConstraint(Sketcher.Constraint("Coincident", 1, 3, 0, 3))
sketch4.addConstraint(Sketcher.Constraint("Diameter", 0, Q("45 mm")))
sketch4.addConstraint(Sketcher.Constraint("Diameter", 1, Q("30 mm")))
sketch4.addConstraint(Sketcher.Constraint("DistanceX", -1, 1, 0, 3, Q("282.570089 mm")))
sketch4.addConstraint(Sketcher.Constraint("DistanceY", 0, 3, -1, 1, Q("63.154216 mm")))
pad4 = body.newObject("PartDesign::Pad", "Pad003")
pad4.Profile = sketch4
pad4.Length = 40

sketch5 = body.newObject("Sketcher::SketchObject", "Sketch004")
sketch5.AttachmentSupport = (doc.getObject("YZ_Plane"), [""])
sketch5.MapMode = "FlatFace"
sketch5.AttachmentOffset = App.Placement(V(0, 0, 115), App.Rotation())
sketch5.addGeometry(Part.Circle(V(283, -63, 0), V(0, 0, 1), 22), False)
sketch5.addGeometry(Part.Circle(V(283, -63, 0), V(0, 0, 1), 15), False)
sketch5.addConstraint(Sketcher.Constraint("Coincident", 1, 3, 0, 3))
sketch5.addConstraint(Sketcher.Constraint("Diameter", 0, Q("45 mm")))
sketch5.addConstraint(Sketcher.Constraint("Diameter", 1, Q("30 mm")))
sketch5.addConstraint(Sketcher.Constraint("DistanceX", -1, 1, 0, 3, Q("282.570089 mm")))
sketch5.addConstraint(Sketcher.Constraint("DistanceY", 0, 3, -1, 1, Q("63.154216 mm")))
pad5 = body.newObject("PartDesign::Pad", "Pad004")
pad5.Profile = sketch5
pad5.Length = 40
pad5.Reversed = True

sketch6 = body.newObject("Sketcher::SketchObject", "Sketch005")
sketch6.AttachmentSupport = (doc.getObject("YZ_Plane"), [""])
sketch6.MapMode = "FlatFace"
sketch6.AttachmentOffset = App.Placement(V(0, 0, -35), App.Rotation())
sketch6.addGeometry(Part.Circle(V(-259, -285, 0), V(0, 0, 1), 28), False)
sketch6.addGeometry(Part.Circle(V(-259, -285, 0), V(0, 0, 1), 20), False)
sketch6.addConstraint(Sketcher.Constraint("Coincident", 1, 3, 0, 3))
sketch6.addConstraint(Sketcher.Constraint("Diameter", 0, Q("55 mm")))
sketch6.addConstraint(Sketcher.Constraint("Diameter", 1, Q("40 mm")))
sketch6.addConstraint(Sketcher.Constraint("DistanceX", 0, 3, -1, 1, Q("258.518901 mm")))
sketch6.addConstraint(Sketcher.Constraint("DistanceY", 0, 3, -1, 1, Q("284.831799 mm")))
pad6 = body.newObject("PartDesign::Pad", "Pad005")
pad6.Profile = sketch6
pad6.Length = 50

sketch7 = body.newObject("Sketcher::SketchObject", "Sketch006")
sketch7.AttachmentSupport = (doc.getObject("YZ_Plane"), [""])
sketch7.MapMode = "FlatFace"
sketch7.AttachmentOffset = App.Placement(V(0, 0, 115), App.Rotation())
sketch7.addGeometry(Part.Circle(V(-259, -285, 0), V(0, 0, 1), 28), False)
sketch7.addGeometry(Part.Circle(V(-259, -285, 0), V(0, 0, 1), 20), False)
sketch7.addConstraint(Sketcher.Constraint("Coincident", 1, 3, 0, 3))
sketch7.addConstraint(Sketcher.Constraint("Diameter", 0, Q("55 mm")))
sketch7.addConstraint(Sketcher.Constraint("Diameter", 1, Q("40 mm")))
sketch7.addConstraint(Sketcher.Constraint("DistanceX", 0, 3, -1, 1, Q("258.518901 mm")))
sketch7.addConstraint(Sketcher.Constraint("DistanceY", 0, 3, -1, 1, Q("284.831799 mm")))
pad7 = body.newObject("PartDesign::Pad", "Pad006")
pad7.Profile = sketch7
pad7.Length = 50
pad7.Reversed = True

doc.recompute()
